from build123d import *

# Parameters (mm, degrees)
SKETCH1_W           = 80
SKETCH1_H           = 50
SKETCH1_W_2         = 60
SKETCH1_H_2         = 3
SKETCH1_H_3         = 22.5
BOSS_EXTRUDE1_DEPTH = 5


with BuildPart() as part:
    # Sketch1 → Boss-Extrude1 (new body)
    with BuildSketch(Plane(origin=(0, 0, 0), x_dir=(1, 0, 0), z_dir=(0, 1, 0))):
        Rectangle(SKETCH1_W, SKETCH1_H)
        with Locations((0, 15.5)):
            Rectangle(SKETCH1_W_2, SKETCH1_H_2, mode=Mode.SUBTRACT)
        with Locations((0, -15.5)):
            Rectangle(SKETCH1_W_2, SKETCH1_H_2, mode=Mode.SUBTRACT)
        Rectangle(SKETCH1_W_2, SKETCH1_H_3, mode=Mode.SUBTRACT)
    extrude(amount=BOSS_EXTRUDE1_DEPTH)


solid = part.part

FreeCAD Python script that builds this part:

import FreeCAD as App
import Part
import Sketcher

V = App.Vector
Q = App.Units.Quantity

doc = App.newDocument("Part")
body = doc.addObject("PartDesign::Body", "Body")

# Sketch on XZ plane
sketch1 = body.newObject("Sketcher::SketchObject", "Sketch")
sketch1.AttachmentSupport = (doc.getObject("XZ_Plane"), [""])
sketch1.MapMode = "FlatFace"
sketch1.addGeometry(Part.LineSegment(V(-40, -25, 0), V(-40, 25, 0)), False)
sketch1.addGeometry(Part.LineSegment(V(-40, 25, 0), V(40, 25, 0)), False)
sketch1.addGeometry(Part.LineSegment(V(40, 25, 0), V(40, -25, 0)), False)
sketch1.addGeometry(Part.LineSegment(V(40, -25, 0), V(-40, -25, 0)), False)
sketch1.addGeometry(Part.LineSegment(V(30, 17, 0), V(-30, 17, 0)), False)
sketch1.addGeometry(Part.LineSegment(V(-30, 17, 0), V(-30, 14, 0)), False)
sketch1.addGeometry(Part.LineSegment(V(-30, 14, 0), V(30, 14, 0)), False)
sketch1.addGeometry(Part.LineSegment(V(30, 14, 0), V(30, 17, 0)), False)
sketch1.addGeometry(Part.LineSegment(V(30, 11.2, 0), V(-30, 11.2, 0)), False)
sketch1.addGeometry(Part.LineSegment(V(-30, 11.2, 0), V(-30, -11.2, 0)), False)
sketch1.addGeometry(Part.LineSegment(V(-30, -11.2, 0), V(30, -11.2, 0)), False)
sketch1.addGeometry(Part.LineSegment(V(30, -11.2, 0), V(30, 11.2, 0)), False)
sketch1.addGeometry(Part.LineSegment(V(30, -14, 0), V(-30, -14, 0)), False)
sketch1.addGeometry(Part.LineSegment(V(-30, -14, 0), V(-30, -17, 0)), False)
sketch1.addGeometry(Part.LineSegment(V(-30, -17, 0), V(30, -17, 0)), False)
sketch1.addGeometry(Part.LineSegment(V(30, -17, 0), V(30, -14, 0)), False)
sketch1.addConstraint(Sketcher.Constraint("Coincident", 0, 2, 1, 1))
sketch1.addConstraint(Sketcher.Constraint("Coincident", 1, 2, 2, 1))
sketch1.addConstraint(Sketcher.Constraint("Coincident", 2, 2, 3, 1))
sketch1.addConstraint(Sketcher.Constraint("Coincident", 3, 2, 0, 1))
sketch1.addConstraint(Sketcher.Constraint("Coincident", 4, 2, 5, 1))
sketch1.addConstraint(Sketcher.Constraint("Coincident", 5, 2, 6, 1))
sketch1.addConstraint(Sketcher.Constraint("Coincident", 6, 2, 7, 1))
sketch1.addConstraint(Sketcher.Constraint("Coincident", 7, 2, 4, 1))
sketch1.addConstraint(Sketcher.Constraint("Coincident", 8, 2, 9, 1))
sketch1.addConstraint(Sketcher.Constraint("Coincident", 9, 2, 10, 1))
sketch1.addConstraint(Sketcher.Constraint("Coincident", 10, 2, 11, 1))
sketch1.addConstraint(Sketcher.Constraint("Coincident", 11, 2, 8, 1))
sketch1.addConstraint(Sketcher.Constraint("Coincident", 12, 2, 13, 1))
sketch1.addConstraint(Sketcher.Constraint("Coincident", 13, 2, 14, 1))
sketch1.addConstraint(Sketcher.Constraint("Coincident", 14, 2, 15, 1))
sketch1.addConstraint(Sketcher.Constraint("Coincident", 15, 2, 12, 1))
sketch1.addConstraint(Sketcher.Constraint("Vertical", 0))
sketch1.addConstraint(Sketcher.Constraint("Horizontal", 1))
sketch1.addConstraint(Sketcher.Constraint("Vertical", 2))
sketch1.addConstraint(Sketcher.Constraint("Horizontal", 3))
sketch1.addConstraint(Sketcher.Constraint("Horizontal", 4))
sketch1.addConstraint(Sketcher.Constraint("Vertical", 5))
sketch1.addConstraint(Sketcher.Constraint("Horizontal", 6))
sketch1.addConstraint(Sketcher.Constraint("Vertical", 7))
sketch1.addConstraint(Sketcher.Constraint("Horizontal", 8))
sketch1.addConstraint(Sketcher.Constraint("Vertical", 9))
sketch1.addConstraint(Sketcher.Constraint("Horizontal", 10))
sketch1.addConstraint(Sketcher.Constraint("Vertical", 11))
sketch1.addConstraint(Sketcher.Constraint("Horizontal", 12))
sketch1.addConstraint(Sketcher.Constraint("Vertical", 13))
sketch1.addConstraint(Sketcher.Constraint("Horizontal", 14))
sketch1.addConstraint(Sketcher.Constraint("Vertical", 15))
sketch1.addConstraint(Sketcher.Constraint("Symmetric", 0, 2, 2, 2, -1, 1))
sketch1.addConstraint(Sketcher.Constraint("Symmetric", 8, 2, 10, 2, -1, 1))
sketch1.addConstraint(Sketcher.Constraint("Symmetric", 6, 2, 12, 2, -1, 1))
sketch1.addConstraint(Sketcher.Constraint("Symmetric", 4, 2, 14, 2, -1, 1))
sketch1.addConstraint(Sketcher.Constraint("Vertical", 5, 2, 8, 2))
sketch1.addConstraint(Sketcher.Constraint("Vertical", 7, 2, 10, 2))
sketch1.addConstraint(Sketcher.Constraint("DistanceX", 1, 1, 1, 2, Q("80 mm")))
sketch1.addConstraint(Sketcher.Constraint("DistanceX", 4, 2, 4, 1, Q("60 mm")))
sketch1.addConstraint(Sketcher.Constraint("DistanceY", 0, 1, 0, 2, Q("50 mm")))
sketch1.addConstraint(Sketcher.Constraint("DistanceY", 5, 2, 5, 1, Q("3 mm")))
sketch1.addConstraint(Sketcher.Constraint("DistanceY", 9, 2, 9, 1, Q("22.5 mm")))
sketch1.addConstraint(Sketcher.Constraint("DistanceY", -1, 1, 4, 2, Q("17 mm")))
pad1 = body.newObject("PartDesign::Pad", "Pad")
pad1.Profile = sketch1
pad1.Length = 5
pad1.Reversed = True

doc.recompute()
